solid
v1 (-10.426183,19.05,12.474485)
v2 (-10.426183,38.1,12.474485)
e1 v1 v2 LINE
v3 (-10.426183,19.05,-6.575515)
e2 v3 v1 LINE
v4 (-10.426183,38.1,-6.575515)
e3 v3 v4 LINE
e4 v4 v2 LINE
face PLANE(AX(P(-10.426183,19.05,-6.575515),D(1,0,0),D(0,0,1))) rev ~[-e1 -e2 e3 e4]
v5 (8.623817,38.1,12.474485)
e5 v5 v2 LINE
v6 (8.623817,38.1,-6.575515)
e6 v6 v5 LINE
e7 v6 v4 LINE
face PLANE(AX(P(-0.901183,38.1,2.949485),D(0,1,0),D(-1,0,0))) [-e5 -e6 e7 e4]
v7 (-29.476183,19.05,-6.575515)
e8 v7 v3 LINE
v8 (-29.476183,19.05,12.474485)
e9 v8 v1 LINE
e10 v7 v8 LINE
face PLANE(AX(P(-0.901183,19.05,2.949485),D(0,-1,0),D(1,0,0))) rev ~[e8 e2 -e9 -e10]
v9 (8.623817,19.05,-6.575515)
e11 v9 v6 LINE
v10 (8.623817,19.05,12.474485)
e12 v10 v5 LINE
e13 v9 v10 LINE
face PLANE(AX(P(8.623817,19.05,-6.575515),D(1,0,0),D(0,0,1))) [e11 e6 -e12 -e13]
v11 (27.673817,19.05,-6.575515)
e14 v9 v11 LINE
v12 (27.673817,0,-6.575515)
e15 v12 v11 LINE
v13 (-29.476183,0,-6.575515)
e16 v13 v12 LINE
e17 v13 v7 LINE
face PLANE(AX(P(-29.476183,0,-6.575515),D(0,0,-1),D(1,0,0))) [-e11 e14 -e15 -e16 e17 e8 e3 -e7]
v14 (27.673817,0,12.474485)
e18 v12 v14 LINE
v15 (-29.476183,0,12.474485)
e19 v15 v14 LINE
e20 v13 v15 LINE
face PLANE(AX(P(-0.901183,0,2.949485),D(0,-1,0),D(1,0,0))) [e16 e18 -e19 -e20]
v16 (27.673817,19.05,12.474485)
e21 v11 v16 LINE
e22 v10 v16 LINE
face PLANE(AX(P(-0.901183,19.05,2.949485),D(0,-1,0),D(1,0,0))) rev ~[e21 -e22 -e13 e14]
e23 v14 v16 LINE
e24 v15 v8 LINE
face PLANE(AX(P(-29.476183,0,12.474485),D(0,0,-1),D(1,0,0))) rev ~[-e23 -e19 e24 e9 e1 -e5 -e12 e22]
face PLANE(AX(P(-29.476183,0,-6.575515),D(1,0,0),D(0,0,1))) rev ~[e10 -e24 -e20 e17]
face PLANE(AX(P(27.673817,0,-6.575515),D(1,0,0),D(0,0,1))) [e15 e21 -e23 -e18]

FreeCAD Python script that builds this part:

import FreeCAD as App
import Part
import Sketcher
Q = App.Units.Quantity

doc = App.newDocument("Part")
params = doc.addObject("Spreadsheet::Sheet", "Params")
for row, (alias, value) in enumerate([
    ("sketch1_width", "2.25 in"),
    ("sketch1_height", "0.75 in"),
    ("pad1_length", "0.75 in"),
    ("sketch2_width", "0.75 in"),
    ("pad2_length", "0.75 in"),
], start=1):
    params.set(f"A{row}", alias)
    params.set(f"B{row}", "=" + value)
    params.setAlias(f"B{row}", alias)

body = doc.addObject("PartDesign::Body", "Body")

sketch1 = body.newObject("Sketcher::SketchObject", "Sketch")
sketch1.AttachmentSupport = (doc.getObject("XZ_Plane"), [""])
sketch1.MapMode = "FlatFace"
sketch1.addGeometry(Part.LineSegment(App.Vector(-29, 12, 0), App.Vector(-29, -7, 0)), False)
sketch1.addGeometry(Part.LineSegment(App.Vector(-29, -7, 0), App.Vector(28, -7, 0)), False)
sketch1.addGeometry(Part.LineSegment(App.Vector(28, -7, 0), App.Vector(28, 12, 0)), False)
sketch1.addGeometry(Part.LineSegment(App.Vector(28, 12, 0), App.Vector(-29, 12, 0)), False)
sketch1.addConstraint(Sketcher.Constraint("Coincident", 0, 2, 1, 1))
sketch1.addConstraint(Sketcher.Constraint("Coincident", 1, 2, 2, 1))
sketch1.addConstraint(Sketcher.Constraint("Coincident", 2, 2, 3, 1))
sketch1.addConstraint(Sketcher.Constraint("Coincident", 3, 2, 0, 1))
sketch1.addConstraint(Sketcher.Constraint("Vertical", 0))
sketch1.addConstraint(Sketcher.Constraint("Horizontal", 1))
sketch1.addConstraint(Sketcher.Constraint("Vertical", 2))
sketch1.addConstraint(Sketcher.Constraint("Horizontal", 3))
sketch1.addConstraint(Sketcher.Constraint("DistanceX", 1, 1, 1, 2, Q("2.25 in")))
sketch1.addConstraint(Sketcher.Constraint("DistanceY", 0, 2, 0, 1, Q("0.75 in")))
sketch1.addConstraint(Sketcher.Constraint("DistanceX", 0, 2, -1, 1, Q("29.476183 mm")))
sketch1.addConstraint(Sketcher.Constraint("DistanceY", 0, 2, -1, 1, Q("6.575515 mm")))
sketch1.setExpression("Constraints[8]", "Params.sketch1_width")
sketch1.setExpression("Constraints[9]", "Params.sketch1_height")
pad1 = body.newObject("PartDesign::Pad", "Pad")
pad1.Profile = sketch1
pad1.setExpression("Length", "Params.pad1_length")
pad1.Reversed = True

sketch2 = body.newObject("Sketcher::SketchObject", "Sketch001")
sketch2.AttachmentSupport = (doc.getObject("XZ_Plane"), [""])
sketch2.MapMode = "FlatFace"
sketch2.AttachmentOffset = App.Placement(App.Vector(0, 0, -0.75 * 25.4), App.Rotation())
sketch2.addGeometry(Part.LineSegment(App.Vector(9, 12, 0), App.Vector(9, -7, 0)), False)
sketch2.addGeometry(Part.LineSegment(App.Vector(9, -7, 0), App.Vector(-10, -7, 0)), False)
sketch2.addGeometry(Part.LineSegment(App.Vector(-10, -7, 0), App.Vector(-10, 12, 0)), False)
sketch2.addGeometry(Part.LineSegment(App.Vector(-10, 12, 0), App.Vector(9, 12, 0)), False)
sketch2.addConstraint(Sketcher.Constraint("Coincident", 0, 2, 1, 1))
sketch2.addConstraint(Sketcher.Constraint("Coincident", 1, 2, 2, 1))
sketch2.addConstraint(Sketcher.Constraint("Coincident", 2, 2, 3, 1))
sketch2.addConstraint(Sketcher.Constraint("Coincident", 3, 2, 0, 1))
sketch2.addConstraint(Sketcher.Constraint("Vertical", 0))
sketch2.addConstraint(Sketcher.Constraint("Horizontal", 1))
sketch2.addConstraint(Sketcher.Constraint("Vertical", 2))
sketch2.addConstraint(Sketcher.Constraint("Horizontal", 3))
sketch2.addConstraint(Sketcher.Constraint("Equal", 3, 0))
sketch2.addConstraint(Sketcher.Constraint("DistanceX", 1, 2, 1, 1, Q("0.75 in")))
sketch2.addConstraint(Sketcher.Constraint("DistanceX", -1, 1, 0, 2, Q("8.623817 mm")))
sketch2.addConstraint(Sketcher.Constraint("DistanceY", 0, 2, -1, 1, Q("6.575515 mm")))
sketch2.setExpression("Constraints[9]", "Params.sketch2_width")
pad2 = body.newObject("PartDesign::Pad", "Pad001")
pad2.Profile = sketch2
pad2.setExpression("Length", "Params.pad2_length")
pad2.Reversed = True

doc.recompute()
